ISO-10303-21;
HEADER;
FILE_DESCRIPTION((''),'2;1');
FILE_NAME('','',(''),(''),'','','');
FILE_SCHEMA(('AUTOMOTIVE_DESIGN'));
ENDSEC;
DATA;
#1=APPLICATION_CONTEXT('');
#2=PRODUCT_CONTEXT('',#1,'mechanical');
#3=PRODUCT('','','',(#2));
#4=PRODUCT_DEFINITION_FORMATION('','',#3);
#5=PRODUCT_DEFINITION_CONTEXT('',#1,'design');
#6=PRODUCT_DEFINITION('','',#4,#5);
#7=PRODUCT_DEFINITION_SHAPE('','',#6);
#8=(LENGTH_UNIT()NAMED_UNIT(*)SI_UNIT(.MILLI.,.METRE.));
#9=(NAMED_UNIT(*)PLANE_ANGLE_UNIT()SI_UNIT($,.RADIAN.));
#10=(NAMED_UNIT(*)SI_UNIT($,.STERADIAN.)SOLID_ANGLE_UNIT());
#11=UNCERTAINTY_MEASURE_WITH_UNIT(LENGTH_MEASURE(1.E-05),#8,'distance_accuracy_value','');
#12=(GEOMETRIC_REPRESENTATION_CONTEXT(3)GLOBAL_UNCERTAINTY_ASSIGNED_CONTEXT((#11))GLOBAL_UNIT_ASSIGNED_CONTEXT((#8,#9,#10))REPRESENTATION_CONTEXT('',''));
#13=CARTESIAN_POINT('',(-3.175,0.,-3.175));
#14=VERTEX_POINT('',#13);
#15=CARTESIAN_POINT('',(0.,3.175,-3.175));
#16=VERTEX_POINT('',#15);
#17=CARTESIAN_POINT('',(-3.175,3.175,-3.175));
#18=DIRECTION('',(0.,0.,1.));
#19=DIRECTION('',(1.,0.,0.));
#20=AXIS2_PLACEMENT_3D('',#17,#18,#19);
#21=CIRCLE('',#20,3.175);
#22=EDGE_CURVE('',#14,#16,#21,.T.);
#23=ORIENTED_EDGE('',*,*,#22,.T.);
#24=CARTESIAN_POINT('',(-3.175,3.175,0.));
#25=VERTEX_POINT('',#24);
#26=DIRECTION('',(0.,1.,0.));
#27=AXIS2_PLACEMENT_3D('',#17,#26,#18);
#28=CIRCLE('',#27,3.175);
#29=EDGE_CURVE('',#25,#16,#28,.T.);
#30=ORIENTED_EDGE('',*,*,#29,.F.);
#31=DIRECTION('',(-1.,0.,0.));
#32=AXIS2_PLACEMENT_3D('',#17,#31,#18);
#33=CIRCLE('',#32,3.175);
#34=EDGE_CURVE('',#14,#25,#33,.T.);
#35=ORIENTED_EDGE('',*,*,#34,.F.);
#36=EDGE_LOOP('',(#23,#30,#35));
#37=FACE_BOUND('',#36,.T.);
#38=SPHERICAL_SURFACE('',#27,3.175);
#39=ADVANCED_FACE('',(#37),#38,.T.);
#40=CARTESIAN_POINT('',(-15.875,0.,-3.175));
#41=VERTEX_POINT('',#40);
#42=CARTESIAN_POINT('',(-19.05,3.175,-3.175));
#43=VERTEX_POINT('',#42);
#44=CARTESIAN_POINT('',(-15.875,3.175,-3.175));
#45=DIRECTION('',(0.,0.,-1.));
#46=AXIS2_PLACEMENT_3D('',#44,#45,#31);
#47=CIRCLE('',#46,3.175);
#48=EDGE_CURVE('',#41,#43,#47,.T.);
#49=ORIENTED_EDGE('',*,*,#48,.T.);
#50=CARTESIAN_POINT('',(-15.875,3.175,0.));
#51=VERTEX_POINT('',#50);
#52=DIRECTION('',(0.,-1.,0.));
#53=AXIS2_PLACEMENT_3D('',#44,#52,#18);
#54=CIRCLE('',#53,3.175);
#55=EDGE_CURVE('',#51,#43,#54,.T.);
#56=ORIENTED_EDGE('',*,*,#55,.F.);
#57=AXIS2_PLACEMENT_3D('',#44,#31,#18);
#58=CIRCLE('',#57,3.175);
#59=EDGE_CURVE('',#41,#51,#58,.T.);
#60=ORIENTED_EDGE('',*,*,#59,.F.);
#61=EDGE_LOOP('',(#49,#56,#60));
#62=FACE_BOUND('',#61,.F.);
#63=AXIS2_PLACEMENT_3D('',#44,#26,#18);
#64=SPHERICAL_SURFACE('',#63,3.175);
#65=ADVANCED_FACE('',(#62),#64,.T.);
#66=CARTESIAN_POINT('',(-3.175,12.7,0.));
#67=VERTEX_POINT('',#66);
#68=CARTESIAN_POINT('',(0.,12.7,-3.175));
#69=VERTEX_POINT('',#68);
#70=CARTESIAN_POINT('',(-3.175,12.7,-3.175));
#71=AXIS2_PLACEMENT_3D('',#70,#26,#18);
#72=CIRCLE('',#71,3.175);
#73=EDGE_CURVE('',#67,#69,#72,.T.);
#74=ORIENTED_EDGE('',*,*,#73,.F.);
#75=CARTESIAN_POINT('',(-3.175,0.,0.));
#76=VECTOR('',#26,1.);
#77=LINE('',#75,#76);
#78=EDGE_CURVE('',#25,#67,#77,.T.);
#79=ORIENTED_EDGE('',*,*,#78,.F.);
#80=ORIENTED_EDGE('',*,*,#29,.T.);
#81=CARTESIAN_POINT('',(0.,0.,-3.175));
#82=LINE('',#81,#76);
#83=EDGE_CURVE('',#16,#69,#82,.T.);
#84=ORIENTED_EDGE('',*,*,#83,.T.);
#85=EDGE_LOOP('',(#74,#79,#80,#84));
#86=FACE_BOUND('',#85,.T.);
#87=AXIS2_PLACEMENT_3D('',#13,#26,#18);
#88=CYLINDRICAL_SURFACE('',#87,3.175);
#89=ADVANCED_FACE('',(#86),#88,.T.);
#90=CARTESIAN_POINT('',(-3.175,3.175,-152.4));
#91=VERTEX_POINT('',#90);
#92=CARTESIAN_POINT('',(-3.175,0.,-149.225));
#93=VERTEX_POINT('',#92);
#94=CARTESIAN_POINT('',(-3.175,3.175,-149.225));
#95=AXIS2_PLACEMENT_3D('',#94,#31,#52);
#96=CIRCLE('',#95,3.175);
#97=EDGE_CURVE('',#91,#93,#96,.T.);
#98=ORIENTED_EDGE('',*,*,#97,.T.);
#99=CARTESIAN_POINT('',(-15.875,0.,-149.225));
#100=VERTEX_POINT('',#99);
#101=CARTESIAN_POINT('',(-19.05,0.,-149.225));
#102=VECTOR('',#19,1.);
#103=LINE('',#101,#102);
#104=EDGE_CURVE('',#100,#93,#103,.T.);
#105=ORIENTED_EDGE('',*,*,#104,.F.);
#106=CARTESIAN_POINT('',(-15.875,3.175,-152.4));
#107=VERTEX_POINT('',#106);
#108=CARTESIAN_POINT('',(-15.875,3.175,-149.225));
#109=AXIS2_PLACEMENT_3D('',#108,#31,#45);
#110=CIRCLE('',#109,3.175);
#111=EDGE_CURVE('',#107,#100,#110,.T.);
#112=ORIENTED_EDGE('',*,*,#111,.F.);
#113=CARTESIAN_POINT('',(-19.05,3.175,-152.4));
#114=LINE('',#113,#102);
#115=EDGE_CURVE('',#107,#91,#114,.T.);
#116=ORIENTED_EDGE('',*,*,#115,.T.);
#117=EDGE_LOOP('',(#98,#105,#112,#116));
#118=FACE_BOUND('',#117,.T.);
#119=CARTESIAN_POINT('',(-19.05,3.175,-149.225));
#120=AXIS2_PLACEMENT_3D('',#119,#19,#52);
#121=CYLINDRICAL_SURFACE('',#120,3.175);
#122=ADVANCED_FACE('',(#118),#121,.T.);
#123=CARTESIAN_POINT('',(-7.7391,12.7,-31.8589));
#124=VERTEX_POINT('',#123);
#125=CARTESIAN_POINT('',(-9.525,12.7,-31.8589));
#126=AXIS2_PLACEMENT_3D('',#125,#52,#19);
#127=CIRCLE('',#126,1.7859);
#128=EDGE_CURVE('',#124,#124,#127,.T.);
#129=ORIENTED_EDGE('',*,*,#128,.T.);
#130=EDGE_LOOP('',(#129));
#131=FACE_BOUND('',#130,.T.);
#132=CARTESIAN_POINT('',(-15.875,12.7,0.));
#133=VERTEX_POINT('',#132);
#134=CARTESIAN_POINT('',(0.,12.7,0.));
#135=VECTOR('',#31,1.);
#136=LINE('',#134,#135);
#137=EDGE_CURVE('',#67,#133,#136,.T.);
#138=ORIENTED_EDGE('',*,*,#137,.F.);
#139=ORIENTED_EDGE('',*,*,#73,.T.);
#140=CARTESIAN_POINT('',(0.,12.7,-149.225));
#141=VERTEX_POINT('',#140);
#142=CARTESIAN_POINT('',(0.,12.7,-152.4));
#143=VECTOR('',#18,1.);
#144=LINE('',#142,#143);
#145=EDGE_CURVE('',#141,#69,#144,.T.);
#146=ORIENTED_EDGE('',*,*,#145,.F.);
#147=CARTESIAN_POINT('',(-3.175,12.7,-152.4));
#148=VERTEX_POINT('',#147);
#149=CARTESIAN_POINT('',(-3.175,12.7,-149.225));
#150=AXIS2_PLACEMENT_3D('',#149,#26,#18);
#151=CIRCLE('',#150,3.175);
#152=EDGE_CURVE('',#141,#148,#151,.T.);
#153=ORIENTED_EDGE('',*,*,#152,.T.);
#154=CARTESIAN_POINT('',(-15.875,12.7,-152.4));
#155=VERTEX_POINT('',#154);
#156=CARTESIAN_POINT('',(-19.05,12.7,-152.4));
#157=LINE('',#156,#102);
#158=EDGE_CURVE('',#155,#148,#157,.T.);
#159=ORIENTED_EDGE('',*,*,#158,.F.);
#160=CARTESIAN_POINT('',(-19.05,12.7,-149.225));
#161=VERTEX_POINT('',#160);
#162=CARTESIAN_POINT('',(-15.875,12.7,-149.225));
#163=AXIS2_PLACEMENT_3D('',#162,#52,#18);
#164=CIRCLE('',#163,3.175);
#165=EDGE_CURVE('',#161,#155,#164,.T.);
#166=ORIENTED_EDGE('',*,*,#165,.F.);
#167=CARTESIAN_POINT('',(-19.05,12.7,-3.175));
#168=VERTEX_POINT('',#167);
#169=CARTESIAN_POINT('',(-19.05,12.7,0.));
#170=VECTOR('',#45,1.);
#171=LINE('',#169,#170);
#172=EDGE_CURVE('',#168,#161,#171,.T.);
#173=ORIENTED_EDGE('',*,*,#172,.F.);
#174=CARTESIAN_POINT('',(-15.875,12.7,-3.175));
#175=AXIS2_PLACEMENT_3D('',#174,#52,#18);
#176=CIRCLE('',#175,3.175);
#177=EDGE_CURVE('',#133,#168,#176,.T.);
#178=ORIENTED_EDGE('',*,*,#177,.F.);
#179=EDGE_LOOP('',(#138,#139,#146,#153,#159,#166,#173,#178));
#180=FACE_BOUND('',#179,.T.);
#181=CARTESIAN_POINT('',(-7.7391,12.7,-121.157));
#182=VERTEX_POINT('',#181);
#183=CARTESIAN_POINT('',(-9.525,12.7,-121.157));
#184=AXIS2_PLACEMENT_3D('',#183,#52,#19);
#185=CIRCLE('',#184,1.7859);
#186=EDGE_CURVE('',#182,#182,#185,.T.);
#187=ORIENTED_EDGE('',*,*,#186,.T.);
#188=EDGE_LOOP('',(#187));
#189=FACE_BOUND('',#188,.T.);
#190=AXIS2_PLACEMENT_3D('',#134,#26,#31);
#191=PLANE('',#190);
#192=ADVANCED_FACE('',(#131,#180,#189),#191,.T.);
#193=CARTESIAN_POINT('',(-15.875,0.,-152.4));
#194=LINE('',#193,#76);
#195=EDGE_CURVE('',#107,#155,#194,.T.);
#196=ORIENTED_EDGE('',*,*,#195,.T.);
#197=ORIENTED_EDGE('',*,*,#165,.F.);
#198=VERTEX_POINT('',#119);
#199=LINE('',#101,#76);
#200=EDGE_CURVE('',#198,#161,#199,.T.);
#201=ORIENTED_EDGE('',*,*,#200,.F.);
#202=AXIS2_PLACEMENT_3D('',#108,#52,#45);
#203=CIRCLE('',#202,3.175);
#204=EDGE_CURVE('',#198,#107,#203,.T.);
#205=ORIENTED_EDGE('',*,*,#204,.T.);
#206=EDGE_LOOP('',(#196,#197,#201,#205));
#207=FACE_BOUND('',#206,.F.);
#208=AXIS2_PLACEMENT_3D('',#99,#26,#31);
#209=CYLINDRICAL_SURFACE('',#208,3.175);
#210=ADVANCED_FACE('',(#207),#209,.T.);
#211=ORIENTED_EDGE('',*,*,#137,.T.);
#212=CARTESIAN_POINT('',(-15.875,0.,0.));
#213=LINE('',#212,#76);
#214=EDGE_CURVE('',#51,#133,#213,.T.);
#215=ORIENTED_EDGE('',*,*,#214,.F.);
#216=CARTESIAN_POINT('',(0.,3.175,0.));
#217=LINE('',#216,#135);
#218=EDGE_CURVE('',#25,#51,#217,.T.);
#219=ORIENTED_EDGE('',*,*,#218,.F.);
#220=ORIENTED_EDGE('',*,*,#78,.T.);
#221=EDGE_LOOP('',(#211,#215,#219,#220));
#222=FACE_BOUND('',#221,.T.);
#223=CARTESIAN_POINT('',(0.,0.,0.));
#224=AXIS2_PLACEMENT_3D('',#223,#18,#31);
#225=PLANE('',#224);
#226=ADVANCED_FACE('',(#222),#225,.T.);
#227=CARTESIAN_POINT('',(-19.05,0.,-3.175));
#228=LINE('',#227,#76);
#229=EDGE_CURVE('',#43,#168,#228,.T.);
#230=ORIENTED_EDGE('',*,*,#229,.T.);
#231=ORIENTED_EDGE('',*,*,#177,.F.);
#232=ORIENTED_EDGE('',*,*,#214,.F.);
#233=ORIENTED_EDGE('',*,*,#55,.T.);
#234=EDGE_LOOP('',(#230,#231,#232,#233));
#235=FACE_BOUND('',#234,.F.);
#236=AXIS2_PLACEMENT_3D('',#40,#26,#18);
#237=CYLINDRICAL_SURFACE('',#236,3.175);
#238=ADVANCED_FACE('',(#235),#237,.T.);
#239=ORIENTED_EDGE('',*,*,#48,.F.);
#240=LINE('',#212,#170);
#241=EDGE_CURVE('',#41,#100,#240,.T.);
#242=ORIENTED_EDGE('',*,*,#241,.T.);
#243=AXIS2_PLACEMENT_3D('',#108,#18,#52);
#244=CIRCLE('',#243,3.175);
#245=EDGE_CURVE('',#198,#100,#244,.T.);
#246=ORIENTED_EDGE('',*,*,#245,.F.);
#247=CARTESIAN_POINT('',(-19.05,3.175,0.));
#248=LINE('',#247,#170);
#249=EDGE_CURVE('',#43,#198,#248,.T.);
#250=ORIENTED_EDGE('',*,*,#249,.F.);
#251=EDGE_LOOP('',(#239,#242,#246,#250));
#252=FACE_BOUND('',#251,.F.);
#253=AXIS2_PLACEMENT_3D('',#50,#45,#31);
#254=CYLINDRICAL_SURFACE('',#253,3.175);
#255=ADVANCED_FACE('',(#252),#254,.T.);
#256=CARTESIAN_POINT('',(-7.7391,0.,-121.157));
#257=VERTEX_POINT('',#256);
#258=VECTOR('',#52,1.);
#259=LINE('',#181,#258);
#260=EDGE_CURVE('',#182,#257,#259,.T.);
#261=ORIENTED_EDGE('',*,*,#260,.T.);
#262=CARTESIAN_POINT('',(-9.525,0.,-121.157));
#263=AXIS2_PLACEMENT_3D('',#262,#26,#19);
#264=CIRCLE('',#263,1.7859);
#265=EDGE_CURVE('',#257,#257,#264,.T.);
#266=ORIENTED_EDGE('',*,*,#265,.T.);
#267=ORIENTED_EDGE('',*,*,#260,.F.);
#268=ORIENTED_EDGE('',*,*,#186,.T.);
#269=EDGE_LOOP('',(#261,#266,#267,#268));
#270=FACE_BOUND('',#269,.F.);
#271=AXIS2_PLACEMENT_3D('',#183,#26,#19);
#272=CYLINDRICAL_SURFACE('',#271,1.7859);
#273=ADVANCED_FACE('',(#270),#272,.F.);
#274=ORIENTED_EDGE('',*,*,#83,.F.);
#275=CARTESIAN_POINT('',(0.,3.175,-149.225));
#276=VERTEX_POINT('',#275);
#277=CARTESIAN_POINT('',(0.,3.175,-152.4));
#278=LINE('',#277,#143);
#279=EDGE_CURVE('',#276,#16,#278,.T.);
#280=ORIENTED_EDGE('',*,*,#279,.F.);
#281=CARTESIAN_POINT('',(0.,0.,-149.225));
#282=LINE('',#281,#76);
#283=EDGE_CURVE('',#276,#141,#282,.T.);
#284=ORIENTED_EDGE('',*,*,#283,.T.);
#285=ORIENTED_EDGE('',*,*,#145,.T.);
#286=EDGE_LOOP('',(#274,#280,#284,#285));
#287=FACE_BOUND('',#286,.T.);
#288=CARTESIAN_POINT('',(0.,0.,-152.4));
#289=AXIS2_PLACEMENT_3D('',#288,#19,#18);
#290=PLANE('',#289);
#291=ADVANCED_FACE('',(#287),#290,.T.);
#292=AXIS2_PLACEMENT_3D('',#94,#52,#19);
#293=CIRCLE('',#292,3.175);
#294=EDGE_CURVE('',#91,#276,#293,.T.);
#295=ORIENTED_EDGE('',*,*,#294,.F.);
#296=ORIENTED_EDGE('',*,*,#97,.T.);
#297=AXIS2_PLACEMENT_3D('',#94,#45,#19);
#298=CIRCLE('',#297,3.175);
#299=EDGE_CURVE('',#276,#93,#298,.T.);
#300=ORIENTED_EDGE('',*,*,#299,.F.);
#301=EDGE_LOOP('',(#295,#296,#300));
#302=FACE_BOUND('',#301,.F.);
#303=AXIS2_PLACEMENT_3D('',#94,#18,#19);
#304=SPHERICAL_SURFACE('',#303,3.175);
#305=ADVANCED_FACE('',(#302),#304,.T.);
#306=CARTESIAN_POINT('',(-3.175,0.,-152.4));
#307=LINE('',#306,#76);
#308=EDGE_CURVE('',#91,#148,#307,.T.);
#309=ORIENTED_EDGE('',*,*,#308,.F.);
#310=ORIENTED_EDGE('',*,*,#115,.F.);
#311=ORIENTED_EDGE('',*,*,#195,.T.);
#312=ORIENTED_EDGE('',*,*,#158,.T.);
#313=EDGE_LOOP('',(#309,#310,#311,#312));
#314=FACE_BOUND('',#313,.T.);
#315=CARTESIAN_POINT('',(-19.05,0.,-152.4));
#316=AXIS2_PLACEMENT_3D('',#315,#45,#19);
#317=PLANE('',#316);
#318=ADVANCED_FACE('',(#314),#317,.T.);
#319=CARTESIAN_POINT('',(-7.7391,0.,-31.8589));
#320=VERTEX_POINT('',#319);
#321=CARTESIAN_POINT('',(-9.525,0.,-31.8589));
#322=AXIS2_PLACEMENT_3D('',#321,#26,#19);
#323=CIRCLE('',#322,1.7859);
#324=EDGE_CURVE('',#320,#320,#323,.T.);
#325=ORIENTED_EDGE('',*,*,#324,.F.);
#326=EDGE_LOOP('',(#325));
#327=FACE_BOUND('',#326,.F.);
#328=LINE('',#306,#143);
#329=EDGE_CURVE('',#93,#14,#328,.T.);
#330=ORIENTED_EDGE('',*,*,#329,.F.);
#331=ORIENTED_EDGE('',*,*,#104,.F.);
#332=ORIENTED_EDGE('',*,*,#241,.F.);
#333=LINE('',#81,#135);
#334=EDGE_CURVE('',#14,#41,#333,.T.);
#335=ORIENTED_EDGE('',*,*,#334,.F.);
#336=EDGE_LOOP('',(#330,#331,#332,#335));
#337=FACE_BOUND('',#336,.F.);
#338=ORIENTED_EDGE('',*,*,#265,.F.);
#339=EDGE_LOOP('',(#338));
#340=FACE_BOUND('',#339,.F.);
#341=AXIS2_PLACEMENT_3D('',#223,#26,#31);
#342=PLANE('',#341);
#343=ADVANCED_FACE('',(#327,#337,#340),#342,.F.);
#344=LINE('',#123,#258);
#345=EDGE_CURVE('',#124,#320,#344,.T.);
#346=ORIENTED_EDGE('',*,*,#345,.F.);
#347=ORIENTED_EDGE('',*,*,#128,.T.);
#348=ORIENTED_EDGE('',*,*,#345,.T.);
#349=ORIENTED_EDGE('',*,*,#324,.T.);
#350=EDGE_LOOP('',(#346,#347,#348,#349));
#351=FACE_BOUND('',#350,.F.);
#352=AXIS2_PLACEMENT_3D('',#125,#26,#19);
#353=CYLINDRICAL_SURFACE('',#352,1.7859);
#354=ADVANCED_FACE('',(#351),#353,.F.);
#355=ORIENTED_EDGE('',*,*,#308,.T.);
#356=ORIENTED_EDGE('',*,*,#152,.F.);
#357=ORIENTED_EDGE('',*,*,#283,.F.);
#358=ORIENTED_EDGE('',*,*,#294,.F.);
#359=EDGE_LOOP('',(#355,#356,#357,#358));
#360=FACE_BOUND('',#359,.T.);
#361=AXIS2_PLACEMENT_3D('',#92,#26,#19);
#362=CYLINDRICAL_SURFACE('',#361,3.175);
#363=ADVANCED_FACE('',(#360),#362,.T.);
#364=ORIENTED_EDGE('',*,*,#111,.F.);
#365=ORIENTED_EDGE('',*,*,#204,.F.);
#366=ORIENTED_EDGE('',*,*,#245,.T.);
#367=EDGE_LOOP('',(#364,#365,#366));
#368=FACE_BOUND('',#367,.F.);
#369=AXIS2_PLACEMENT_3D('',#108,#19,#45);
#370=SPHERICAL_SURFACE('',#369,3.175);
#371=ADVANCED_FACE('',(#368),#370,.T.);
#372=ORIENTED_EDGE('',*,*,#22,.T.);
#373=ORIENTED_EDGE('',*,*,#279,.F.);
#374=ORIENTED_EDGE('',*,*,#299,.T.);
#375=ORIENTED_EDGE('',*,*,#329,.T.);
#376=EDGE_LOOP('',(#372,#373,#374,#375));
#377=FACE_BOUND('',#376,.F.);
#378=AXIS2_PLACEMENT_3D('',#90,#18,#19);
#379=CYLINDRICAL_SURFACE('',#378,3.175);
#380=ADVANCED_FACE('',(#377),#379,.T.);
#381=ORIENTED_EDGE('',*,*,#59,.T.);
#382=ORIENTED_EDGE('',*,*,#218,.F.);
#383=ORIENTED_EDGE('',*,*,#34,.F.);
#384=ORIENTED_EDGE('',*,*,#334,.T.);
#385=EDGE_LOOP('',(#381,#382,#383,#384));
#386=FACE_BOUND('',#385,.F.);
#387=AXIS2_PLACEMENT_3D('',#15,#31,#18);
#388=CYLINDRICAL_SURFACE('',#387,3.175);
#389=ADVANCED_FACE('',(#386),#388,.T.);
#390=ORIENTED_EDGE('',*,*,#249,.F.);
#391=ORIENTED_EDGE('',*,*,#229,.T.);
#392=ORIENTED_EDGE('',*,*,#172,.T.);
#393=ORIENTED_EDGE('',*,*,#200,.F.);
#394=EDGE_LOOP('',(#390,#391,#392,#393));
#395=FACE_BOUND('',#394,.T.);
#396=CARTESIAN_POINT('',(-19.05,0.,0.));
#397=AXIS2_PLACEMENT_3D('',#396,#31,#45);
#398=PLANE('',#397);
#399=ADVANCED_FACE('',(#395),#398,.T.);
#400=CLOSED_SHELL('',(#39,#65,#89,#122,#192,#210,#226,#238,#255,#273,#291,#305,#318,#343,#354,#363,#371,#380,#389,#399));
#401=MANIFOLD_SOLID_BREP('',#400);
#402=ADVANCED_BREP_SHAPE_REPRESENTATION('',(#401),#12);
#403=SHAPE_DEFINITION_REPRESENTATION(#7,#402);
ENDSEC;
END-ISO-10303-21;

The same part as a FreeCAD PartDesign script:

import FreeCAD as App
import Part
import Sketcher

V = App.Vector
Q = App.Units.Quantity


def edges_at(feature, points):
    """Names of the edges that pass closest to the given points."""
    edges = feature.Shape.Edges
    near = lambda p: min(range(len(edges)), key=lambda i: edges[i].distToShape(Part.Vertex(*p))[0])
    return sorted({f"Edge{near(p) + 1}" for p in points})

doc = App.newDocument("Part")
body = doc.addObject("PartDesign::Body", "Body")

# Sketch on XZ plane
sketch1 = body.newObject("Sketcher::SketchObject", "Sketch")
sketch1.AttachmentSupport = (doc.getObject("XZ_Plane"), [""])
sketch1.MapMode = "FlatFace"
sketch1.addGeometry(Part.LineSegment(V(-19, 0, 0), V(0, 0, 0)), False)
sketch1.addGeometry(Part.LineSegment(V(0, 0, 0), V(0, -152, 0)), False)
sketch1.addGeometry(Part.LineSegment(V(0, -152, 0), V(-19, -152, 0)), False)
sketch1.addGeometry(Part.LineSegment(V(-19, -152, 0), V(-19, 0, 0)), False)
sketch1.addConstraint(Sketcher.Constraint("Coincident", 0, 2, 1, 1))
sketch1.addConstraint(Sketcher.Constraint("Coincident", 1, 2, 2, 1))
sketch1.addConstraint(Sketcher.Constraint("Coincident", 2, 2, 3, 1))
sketch1.addConstraint(Sketcher.Constraint("Coincident", 3, 2, 0, 1))
sketch1.addConstraint(Sketcher.Constraint("Horizontal", 0))
sketch1.addConstraint(Sketcher.Constraint("Vertical", 1))
sketch1.addConstraint(Sketcher.Constraint("Horizontal", 2))
sketch1.addConstraint(Sketcher.Constraint("Vertical", 3))
sketch1.addConstraint(Sketcher.Constraint("Coincident", 0, 2, -1, 1))
sketch1.addConstraint(Sketcher.Constraint("DistanceY", 1, 2, 1, 1, Q("6 in")))
sketch1.addConstraint(Sketcher.Constraint("DistanceX", 0, 1, 0, 2, Q("0.75 in")))
pad1 = body.newObject("PartDesign::Pad", "Pad")
pad1.Profile = sketch1
pad1.Length = Q("0.5 in")
pad1.Reversed = True

# Sketch on XZ plane
sketch2 = body.newObject("Sketcher::SketchObject", "Sketch001")
sketch2.AttachmentSupport = (doc.getObject("XZ_Plane"), [""])
sketch2.MapMode = "FlatFace"
sketch2.AttachmentOffset = App.Placement(V(0, 0, -0.5 * 25.4), App.Rotation())
sketch2.addGeometry(Part.Circle(V(-9.5, -31.9, 0), V(0, 0, 1), 1.8), False)
sketch2.addGeometry(Part.Circle(V(-9.5, -121.2, 0), V(0, 0, 1), 1.8), False)
sketch2.addConstraint(Sketcher.Constraint("Equal", 0, 1))
sketch2.addConstraint(Sketcher.Constraint("Vertical", 0, 3, 1, 3))
sketch2.addConstraint(Sketcher.Constraint("Diameter", 0, Q("0.140622 in")))
sketch2.addConstraint(Sketcher.Constraint("DistanceX", 0, 3, -1, 1, Q("0.375 in")))
sketch2.addConstraint(Sketcher.Constraint("DistanceY", 0, 3, -1, 1, Q("1.2542913 in")))
sketch2.addConstraint(Sketcher.Constraint("DistanceY", 1, 3, -1, 1, Q("121.157 mm")))
pocket1 = body.newObject("PartDesign::Pocket", "Pocket")
pocket1.Profile = sketch2
pocket1.Length = Q("1.375 in")
pocket1.Reversed = True
doc.recompute()

fillet = body.newObject("PartDesign::Fillet", "Fillet")
fillet.Base = (pocket1, edges_at(pocket1, [
    (0, 6.35, 0),
    (-19.05, 6.35, 0),
    (-9.525, 0, 0),
    (0, 0, -76.2),
    (0, 6.35, -152.4),
    (-9.525, 0, -152.4),
    (-19.05, 6.35, -152.4),
    (-19.05, 0, -76.2),
]))
fillet.Radius = Q("0.125 in")

doc.recompute()
